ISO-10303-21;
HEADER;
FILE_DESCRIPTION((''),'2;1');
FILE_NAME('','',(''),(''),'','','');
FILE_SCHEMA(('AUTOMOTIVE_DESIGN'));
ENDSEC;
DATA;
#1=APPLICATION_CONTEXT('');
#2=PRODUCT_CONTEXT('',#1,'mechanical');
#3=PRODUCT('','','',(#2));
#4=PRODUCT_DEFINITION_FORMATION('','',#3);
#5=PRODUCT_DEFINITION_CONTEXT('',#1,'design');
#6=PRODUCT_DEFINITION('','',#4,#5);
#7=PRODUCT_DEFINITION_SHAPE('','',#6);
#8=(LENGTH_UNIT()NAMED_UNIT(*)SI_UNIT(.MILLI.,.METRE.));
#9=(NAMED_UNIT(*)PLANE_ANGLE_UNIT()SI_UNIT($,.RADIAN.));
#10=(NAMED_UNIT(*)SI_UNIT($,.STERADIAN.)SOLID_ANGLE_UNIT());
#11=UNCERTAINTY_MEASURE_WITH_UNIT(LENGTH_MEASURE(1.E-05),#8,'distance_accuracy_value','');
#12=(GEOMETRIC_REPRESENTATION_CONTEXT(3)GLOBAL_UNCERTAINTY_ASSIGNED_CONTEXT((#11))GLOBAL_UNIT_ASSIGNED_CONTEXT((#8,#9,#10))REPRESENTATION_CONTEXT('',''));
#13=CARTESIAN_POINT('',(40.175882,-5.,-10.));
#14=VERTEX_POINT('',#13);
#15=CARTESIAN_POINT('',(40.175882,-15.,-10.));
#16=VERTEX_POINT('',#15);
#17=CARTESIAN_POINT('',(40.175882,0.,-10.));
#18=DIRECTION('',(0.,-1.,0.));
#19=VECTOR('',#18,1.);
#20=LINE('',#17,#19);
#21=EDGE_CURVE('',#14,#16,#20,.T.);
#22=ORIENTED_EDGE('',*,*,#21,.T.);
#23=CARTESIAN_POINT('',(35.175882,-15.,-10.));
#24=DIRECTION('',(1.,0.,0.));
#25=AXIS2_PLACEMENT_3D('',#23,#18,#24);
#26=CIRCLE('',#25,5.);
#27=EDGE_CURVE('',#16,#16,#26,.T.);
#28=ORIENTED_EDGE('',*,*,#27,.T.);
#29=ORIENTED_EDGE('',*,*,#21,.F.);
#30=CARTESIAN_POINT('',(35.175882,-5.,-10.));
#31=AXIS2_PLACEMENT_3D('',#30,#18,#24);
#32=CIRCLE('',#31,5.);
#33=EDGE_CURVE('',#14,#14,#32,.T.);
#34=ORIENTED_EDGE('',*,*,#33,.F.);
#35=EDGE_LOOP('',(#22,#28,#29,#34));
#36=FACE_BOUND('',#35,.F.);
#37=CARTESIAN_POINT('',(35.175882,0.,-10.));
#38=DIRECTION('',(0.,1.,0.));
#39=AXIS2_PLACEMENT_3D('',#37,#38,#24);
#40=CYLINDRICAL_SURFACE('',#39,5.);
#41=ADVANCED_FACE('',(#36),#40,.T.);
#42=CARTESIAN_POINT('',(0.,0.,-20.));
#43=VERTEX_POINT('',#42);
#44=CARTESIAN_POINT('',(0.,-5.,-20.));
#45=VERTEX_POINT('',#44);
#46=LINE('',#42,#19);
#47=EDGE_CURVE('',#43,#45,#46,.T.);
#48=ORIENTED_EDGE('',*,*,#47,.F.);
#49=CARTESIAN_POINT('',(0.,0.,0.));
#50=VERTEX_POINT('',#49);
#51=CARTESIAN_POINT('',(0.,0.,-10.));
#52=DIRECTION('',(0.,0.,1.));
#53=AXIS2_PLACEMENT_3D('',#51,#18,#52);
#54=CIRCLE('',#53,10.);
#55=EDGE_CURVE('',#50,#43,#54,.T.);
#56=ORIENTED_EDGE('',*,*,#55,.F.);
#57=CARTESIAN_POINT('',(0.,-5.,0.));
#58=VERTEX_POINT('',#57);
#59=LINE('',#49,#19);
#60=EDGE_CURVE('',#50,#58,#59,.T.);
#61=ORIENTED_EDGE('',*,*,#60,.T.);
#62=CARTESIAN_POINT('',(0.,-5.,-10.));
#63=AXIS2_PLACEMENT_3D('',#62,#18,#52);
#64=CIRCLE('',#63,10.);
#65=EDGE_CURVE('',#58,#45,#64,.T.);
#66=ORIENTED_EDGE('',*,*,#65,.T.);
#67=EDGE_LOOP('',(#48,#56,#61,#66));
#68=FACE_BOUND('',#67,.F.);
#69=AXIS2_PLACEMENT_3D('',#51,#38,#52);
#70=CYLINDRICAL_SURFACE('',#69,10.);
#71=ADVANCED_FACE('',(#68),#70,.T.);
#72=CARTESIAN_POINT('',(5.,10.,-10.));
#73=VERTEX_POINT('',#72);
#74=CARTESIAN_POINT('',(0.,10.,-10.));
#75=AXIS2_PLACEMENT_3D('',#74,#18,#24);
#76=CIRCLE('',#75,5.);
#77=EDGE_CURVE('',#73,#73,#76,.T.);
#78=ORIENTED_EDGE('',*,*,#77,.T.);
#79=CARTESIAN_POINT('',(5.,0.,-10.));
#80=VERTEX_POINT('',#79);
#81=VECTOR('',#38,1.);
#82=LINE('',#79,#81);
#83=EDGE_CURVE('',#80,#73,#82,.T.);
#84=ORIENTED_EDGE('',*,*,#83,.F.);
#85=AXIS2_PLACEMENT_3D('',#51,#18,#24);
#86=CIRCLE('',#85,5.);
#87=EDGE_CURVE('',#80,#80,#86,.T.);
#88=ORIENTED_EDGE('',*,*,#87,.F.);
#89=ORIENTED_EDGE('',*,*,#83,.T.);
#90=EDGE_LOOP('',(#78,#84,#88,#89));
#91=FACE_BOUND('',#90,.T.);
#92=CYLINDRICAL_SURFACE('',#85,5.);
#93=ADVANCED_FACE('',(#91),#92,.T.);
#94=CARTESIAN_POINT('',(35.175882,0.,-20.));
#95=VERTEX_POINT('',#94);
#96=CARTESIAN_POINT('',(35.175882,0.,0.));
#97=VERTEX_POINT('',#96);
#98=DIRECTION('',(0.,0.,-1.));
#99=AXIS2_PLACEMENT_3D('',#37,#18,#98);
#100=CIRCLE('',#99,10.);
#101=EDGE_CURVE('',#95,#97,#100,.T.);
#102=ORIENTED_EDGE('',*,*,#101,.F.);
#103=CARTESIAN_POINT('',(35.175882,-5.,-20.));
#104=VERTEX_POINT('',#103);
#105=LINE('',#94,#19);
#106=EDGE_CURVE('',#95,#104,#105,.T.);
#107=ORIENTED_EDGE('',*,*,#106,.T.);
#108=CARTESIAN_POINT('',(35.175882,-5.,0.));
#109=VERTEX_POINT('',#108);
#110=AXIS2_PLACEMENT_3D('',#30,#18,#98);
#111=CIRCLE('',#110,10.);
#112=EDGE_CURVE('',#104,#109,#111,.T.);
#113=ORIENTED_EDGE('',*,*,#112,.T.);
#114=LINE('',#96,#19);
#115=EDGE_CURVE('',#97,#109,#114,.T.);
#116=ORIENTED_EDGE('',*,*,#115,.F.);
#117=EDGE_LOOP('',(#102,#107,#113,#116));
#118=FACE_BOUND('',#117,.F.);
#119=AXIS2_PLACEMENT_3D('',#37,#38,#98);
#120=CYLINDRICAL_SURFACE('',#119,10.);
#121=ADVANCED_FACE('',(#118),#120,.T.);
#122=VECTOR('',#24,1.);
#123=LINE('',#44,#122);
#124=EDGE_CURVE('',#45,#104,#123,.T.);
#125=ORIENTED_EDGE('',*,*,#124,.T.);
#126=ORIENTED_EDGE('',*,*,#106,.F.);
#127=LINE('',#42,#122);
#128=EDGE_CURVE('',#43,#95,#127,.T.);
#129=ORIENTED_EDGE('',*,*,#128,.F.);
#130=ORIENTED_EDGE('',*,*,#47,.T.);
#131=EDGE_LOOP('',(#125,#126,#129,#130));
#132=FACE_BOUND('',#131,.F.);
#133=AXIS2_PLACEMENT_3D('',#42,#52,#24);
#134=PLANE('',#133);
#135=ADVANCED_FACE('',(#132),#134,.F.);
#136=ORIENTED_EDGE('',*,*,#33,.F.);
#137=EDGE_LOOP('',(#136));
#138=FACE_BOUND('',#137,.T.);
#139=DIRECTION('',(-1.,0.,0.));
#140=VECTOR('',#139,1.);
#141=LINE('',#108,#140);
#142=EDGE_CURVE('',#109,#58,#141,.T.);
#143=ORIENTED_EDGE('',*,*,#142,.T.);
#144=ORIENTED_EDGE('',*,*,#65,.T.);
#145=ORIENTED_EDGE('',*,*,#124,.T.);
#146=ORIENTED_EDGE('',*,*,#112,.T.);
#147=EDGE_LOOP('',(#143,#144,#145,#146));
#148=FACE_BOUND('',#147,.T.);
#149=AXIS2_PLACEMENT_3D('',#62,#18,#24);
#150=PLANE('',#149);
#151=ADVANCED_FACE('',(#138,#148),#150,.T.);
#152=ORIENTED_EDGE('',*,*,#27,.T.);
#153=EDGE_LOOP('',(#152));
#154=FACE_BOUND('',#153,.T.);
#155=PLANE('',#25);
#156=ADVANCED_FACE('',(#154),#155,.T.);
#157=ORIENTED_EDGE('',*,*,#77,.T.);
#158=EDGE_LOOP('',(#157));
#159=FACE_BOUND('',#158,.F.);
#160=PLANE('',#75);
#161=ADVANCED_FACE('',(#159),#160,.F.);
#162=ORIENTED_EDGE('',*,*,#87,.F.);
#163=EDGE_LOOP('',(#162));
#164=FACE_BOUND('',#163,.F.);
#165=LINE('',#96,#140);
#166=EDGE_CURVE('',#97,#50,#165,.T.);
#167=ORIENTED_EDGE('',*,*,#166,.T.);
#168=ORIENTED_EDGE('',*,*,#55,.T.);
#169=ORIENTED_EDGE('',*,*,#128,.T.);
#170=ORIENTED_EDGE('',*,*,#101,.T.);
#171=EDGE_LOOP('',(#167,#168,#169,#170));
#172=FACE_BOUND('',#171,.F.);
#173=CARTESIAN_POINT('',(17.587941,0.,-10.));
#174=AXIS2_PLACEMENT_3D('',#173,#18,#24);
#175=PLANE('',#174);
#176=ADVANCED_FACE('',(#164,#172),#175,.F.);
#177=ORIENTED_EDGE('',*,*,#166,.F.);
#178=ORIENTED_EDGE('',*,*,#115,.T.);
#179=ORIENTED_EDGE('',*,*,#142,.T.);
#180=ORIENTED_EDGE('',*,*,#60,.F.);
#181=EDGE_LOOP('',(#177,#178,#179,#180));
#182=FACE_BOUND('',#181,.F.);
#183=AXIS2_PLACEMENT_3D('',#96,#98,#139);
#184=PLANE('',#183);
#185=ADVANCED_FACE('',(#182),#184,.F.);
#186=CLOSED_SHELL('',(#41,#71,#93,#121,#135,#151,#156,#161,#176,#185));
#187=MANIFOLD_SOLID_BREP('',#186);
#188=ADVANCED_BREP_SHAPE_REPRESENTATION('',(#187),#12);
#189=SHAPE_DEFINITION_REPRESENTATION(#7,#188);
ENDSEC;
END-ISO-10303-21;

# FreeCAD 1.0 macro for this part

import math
import FreeCAD as App
import Part
import Sketcher

doc = App.newDocument("Part")
body = doc.addObject("PartDesign::Body", "Body")

# Sketch on XZ plane
sketch1 = body.newObject("Sketcher::SketchObject", "Sketch")
sketch1.AttachmentSupport = (doc.getObject("XZ_Plane"), [""])
sketch1.MapMode = "FlatFace"
sketch1.addGeometry([
    Part.LineSegment(App.Vector(35, 0, 0), App.Vector(0, 0, 0)),  # 0
    Part.ArcOfCircle(Part.Circle(App.Vector(0, -10, 0), App.Vector(0, 0, 1), 10), math.radians(90), math.radians(270)),  # 1
    Part.LineSegment(App.Vector(0, -20, 0), App.Vector(35, -20, 0)),  # 2
    Part.ArcOfCircle(Part.Circle(App.Vector(35, -10, 0), App.Vector(0, 0, 1), 10), math.radians(-90), math.radians(90)),  # 3
    Part.Circle(App.Vector(0, -10, 0), App.Vector(0, 0, 1), 5),  # 4
    Part.Circle(App.Vector(35, -10, 0), App.Vector(0, 0, 1), 5),  # 5
], False)
sketch1.addConstraint([
    Sketcher.Constraint("Tangent", 0, 2, 1, 1),
    Sketcher.Constraint("Tangent", 1, 2, 2, 1),
    Sketcher.Constraint("Tangent", 2, 2, 3, 1),
    Sketcher.Constraint("Tangent", 3, 2, 0, 1),
    Sketcher.Constraint("Horizontal", 0),
    Sketcher.Constraint("Horizontal", 2),
    Sketcher.Constraint("Coincident", 0, 2, -1, 1),
    Sketcher.Constraint("Coincident", 4, 3, 1, 3),
    Sketcher.Constraint("Coincident", 5, 3, 3, 3),
    Sketcher.Constraint("Equal", 4, 5),
    Sketcher.Constraint("Diameter", 4, 10.0),
    Sketcher.Constraint("Radius", 1, 10.0),
    Sketcher.Constraint("DistanceX", 0, 2, 0, 1, 35.175882),
])
pad1 = body.newObject("PartDesign::Pad", "Pad")
pad1.Profile = sketch1
pad1.Length = 5

# Sketch on XZ plane
sketch2 = body.newObject("Sketcher::SketchObject", "Sketch001")
sketch2.AttachmentSupport = (doc.getObject("XZ_Plane"), [""])
sketch2.MapMode = "FlatFace"
sketch2.addGeometry(Part.Circle(App.Vector(35, -10, 0), App.Vector(0, 0, 1), 5), False)
sketch2.addConstraint([
    Sketcher.Constraint("Diameter", 0, 10.0),
    Sketcher.Constraint("DistanceY", 0, 3, -1, 1, 10.0),
    Sketcher.Constraint("DistanceX", -1, 1, 0, 3, 35.175882),
])
pad2 = body.newObject("PartDesign::Pad", "Pad001")
pad2.Profile = sketch2
pad2.Length = 15

# Sketch on XZ plane
sketch3 = body.newObject("Sketcher::SketchObject", "Sketch002")
sketch3.AttachmentSupport = (doc.getObject("XZ_Plane"), [""])
sketch3.MapMode = "FlatFace"
sketch3.addGeometry(Part.Circle(App.Vector(0, -10, 0), App.Vector(0, 0, 1), 5), False)
sketch3.addConstraint([
    Sketcher.Constraint("PointOnObject", 0, 3, -2),
    Sketcher.Constraint("Diameter", 0, 10.0),
    Sketcher.Constraint("DistanceY", 0, 3, -1, 1, 10.0),
])
pad3 = body.newObject("PartDesign::Pad", "Pad002")
pad3.Profile = sketch3
pad3.Type = "TwoLengths"
pad3.Length = 10
pad3.Length2 = 5
pad3.Reversed = True

doc.recompute()
